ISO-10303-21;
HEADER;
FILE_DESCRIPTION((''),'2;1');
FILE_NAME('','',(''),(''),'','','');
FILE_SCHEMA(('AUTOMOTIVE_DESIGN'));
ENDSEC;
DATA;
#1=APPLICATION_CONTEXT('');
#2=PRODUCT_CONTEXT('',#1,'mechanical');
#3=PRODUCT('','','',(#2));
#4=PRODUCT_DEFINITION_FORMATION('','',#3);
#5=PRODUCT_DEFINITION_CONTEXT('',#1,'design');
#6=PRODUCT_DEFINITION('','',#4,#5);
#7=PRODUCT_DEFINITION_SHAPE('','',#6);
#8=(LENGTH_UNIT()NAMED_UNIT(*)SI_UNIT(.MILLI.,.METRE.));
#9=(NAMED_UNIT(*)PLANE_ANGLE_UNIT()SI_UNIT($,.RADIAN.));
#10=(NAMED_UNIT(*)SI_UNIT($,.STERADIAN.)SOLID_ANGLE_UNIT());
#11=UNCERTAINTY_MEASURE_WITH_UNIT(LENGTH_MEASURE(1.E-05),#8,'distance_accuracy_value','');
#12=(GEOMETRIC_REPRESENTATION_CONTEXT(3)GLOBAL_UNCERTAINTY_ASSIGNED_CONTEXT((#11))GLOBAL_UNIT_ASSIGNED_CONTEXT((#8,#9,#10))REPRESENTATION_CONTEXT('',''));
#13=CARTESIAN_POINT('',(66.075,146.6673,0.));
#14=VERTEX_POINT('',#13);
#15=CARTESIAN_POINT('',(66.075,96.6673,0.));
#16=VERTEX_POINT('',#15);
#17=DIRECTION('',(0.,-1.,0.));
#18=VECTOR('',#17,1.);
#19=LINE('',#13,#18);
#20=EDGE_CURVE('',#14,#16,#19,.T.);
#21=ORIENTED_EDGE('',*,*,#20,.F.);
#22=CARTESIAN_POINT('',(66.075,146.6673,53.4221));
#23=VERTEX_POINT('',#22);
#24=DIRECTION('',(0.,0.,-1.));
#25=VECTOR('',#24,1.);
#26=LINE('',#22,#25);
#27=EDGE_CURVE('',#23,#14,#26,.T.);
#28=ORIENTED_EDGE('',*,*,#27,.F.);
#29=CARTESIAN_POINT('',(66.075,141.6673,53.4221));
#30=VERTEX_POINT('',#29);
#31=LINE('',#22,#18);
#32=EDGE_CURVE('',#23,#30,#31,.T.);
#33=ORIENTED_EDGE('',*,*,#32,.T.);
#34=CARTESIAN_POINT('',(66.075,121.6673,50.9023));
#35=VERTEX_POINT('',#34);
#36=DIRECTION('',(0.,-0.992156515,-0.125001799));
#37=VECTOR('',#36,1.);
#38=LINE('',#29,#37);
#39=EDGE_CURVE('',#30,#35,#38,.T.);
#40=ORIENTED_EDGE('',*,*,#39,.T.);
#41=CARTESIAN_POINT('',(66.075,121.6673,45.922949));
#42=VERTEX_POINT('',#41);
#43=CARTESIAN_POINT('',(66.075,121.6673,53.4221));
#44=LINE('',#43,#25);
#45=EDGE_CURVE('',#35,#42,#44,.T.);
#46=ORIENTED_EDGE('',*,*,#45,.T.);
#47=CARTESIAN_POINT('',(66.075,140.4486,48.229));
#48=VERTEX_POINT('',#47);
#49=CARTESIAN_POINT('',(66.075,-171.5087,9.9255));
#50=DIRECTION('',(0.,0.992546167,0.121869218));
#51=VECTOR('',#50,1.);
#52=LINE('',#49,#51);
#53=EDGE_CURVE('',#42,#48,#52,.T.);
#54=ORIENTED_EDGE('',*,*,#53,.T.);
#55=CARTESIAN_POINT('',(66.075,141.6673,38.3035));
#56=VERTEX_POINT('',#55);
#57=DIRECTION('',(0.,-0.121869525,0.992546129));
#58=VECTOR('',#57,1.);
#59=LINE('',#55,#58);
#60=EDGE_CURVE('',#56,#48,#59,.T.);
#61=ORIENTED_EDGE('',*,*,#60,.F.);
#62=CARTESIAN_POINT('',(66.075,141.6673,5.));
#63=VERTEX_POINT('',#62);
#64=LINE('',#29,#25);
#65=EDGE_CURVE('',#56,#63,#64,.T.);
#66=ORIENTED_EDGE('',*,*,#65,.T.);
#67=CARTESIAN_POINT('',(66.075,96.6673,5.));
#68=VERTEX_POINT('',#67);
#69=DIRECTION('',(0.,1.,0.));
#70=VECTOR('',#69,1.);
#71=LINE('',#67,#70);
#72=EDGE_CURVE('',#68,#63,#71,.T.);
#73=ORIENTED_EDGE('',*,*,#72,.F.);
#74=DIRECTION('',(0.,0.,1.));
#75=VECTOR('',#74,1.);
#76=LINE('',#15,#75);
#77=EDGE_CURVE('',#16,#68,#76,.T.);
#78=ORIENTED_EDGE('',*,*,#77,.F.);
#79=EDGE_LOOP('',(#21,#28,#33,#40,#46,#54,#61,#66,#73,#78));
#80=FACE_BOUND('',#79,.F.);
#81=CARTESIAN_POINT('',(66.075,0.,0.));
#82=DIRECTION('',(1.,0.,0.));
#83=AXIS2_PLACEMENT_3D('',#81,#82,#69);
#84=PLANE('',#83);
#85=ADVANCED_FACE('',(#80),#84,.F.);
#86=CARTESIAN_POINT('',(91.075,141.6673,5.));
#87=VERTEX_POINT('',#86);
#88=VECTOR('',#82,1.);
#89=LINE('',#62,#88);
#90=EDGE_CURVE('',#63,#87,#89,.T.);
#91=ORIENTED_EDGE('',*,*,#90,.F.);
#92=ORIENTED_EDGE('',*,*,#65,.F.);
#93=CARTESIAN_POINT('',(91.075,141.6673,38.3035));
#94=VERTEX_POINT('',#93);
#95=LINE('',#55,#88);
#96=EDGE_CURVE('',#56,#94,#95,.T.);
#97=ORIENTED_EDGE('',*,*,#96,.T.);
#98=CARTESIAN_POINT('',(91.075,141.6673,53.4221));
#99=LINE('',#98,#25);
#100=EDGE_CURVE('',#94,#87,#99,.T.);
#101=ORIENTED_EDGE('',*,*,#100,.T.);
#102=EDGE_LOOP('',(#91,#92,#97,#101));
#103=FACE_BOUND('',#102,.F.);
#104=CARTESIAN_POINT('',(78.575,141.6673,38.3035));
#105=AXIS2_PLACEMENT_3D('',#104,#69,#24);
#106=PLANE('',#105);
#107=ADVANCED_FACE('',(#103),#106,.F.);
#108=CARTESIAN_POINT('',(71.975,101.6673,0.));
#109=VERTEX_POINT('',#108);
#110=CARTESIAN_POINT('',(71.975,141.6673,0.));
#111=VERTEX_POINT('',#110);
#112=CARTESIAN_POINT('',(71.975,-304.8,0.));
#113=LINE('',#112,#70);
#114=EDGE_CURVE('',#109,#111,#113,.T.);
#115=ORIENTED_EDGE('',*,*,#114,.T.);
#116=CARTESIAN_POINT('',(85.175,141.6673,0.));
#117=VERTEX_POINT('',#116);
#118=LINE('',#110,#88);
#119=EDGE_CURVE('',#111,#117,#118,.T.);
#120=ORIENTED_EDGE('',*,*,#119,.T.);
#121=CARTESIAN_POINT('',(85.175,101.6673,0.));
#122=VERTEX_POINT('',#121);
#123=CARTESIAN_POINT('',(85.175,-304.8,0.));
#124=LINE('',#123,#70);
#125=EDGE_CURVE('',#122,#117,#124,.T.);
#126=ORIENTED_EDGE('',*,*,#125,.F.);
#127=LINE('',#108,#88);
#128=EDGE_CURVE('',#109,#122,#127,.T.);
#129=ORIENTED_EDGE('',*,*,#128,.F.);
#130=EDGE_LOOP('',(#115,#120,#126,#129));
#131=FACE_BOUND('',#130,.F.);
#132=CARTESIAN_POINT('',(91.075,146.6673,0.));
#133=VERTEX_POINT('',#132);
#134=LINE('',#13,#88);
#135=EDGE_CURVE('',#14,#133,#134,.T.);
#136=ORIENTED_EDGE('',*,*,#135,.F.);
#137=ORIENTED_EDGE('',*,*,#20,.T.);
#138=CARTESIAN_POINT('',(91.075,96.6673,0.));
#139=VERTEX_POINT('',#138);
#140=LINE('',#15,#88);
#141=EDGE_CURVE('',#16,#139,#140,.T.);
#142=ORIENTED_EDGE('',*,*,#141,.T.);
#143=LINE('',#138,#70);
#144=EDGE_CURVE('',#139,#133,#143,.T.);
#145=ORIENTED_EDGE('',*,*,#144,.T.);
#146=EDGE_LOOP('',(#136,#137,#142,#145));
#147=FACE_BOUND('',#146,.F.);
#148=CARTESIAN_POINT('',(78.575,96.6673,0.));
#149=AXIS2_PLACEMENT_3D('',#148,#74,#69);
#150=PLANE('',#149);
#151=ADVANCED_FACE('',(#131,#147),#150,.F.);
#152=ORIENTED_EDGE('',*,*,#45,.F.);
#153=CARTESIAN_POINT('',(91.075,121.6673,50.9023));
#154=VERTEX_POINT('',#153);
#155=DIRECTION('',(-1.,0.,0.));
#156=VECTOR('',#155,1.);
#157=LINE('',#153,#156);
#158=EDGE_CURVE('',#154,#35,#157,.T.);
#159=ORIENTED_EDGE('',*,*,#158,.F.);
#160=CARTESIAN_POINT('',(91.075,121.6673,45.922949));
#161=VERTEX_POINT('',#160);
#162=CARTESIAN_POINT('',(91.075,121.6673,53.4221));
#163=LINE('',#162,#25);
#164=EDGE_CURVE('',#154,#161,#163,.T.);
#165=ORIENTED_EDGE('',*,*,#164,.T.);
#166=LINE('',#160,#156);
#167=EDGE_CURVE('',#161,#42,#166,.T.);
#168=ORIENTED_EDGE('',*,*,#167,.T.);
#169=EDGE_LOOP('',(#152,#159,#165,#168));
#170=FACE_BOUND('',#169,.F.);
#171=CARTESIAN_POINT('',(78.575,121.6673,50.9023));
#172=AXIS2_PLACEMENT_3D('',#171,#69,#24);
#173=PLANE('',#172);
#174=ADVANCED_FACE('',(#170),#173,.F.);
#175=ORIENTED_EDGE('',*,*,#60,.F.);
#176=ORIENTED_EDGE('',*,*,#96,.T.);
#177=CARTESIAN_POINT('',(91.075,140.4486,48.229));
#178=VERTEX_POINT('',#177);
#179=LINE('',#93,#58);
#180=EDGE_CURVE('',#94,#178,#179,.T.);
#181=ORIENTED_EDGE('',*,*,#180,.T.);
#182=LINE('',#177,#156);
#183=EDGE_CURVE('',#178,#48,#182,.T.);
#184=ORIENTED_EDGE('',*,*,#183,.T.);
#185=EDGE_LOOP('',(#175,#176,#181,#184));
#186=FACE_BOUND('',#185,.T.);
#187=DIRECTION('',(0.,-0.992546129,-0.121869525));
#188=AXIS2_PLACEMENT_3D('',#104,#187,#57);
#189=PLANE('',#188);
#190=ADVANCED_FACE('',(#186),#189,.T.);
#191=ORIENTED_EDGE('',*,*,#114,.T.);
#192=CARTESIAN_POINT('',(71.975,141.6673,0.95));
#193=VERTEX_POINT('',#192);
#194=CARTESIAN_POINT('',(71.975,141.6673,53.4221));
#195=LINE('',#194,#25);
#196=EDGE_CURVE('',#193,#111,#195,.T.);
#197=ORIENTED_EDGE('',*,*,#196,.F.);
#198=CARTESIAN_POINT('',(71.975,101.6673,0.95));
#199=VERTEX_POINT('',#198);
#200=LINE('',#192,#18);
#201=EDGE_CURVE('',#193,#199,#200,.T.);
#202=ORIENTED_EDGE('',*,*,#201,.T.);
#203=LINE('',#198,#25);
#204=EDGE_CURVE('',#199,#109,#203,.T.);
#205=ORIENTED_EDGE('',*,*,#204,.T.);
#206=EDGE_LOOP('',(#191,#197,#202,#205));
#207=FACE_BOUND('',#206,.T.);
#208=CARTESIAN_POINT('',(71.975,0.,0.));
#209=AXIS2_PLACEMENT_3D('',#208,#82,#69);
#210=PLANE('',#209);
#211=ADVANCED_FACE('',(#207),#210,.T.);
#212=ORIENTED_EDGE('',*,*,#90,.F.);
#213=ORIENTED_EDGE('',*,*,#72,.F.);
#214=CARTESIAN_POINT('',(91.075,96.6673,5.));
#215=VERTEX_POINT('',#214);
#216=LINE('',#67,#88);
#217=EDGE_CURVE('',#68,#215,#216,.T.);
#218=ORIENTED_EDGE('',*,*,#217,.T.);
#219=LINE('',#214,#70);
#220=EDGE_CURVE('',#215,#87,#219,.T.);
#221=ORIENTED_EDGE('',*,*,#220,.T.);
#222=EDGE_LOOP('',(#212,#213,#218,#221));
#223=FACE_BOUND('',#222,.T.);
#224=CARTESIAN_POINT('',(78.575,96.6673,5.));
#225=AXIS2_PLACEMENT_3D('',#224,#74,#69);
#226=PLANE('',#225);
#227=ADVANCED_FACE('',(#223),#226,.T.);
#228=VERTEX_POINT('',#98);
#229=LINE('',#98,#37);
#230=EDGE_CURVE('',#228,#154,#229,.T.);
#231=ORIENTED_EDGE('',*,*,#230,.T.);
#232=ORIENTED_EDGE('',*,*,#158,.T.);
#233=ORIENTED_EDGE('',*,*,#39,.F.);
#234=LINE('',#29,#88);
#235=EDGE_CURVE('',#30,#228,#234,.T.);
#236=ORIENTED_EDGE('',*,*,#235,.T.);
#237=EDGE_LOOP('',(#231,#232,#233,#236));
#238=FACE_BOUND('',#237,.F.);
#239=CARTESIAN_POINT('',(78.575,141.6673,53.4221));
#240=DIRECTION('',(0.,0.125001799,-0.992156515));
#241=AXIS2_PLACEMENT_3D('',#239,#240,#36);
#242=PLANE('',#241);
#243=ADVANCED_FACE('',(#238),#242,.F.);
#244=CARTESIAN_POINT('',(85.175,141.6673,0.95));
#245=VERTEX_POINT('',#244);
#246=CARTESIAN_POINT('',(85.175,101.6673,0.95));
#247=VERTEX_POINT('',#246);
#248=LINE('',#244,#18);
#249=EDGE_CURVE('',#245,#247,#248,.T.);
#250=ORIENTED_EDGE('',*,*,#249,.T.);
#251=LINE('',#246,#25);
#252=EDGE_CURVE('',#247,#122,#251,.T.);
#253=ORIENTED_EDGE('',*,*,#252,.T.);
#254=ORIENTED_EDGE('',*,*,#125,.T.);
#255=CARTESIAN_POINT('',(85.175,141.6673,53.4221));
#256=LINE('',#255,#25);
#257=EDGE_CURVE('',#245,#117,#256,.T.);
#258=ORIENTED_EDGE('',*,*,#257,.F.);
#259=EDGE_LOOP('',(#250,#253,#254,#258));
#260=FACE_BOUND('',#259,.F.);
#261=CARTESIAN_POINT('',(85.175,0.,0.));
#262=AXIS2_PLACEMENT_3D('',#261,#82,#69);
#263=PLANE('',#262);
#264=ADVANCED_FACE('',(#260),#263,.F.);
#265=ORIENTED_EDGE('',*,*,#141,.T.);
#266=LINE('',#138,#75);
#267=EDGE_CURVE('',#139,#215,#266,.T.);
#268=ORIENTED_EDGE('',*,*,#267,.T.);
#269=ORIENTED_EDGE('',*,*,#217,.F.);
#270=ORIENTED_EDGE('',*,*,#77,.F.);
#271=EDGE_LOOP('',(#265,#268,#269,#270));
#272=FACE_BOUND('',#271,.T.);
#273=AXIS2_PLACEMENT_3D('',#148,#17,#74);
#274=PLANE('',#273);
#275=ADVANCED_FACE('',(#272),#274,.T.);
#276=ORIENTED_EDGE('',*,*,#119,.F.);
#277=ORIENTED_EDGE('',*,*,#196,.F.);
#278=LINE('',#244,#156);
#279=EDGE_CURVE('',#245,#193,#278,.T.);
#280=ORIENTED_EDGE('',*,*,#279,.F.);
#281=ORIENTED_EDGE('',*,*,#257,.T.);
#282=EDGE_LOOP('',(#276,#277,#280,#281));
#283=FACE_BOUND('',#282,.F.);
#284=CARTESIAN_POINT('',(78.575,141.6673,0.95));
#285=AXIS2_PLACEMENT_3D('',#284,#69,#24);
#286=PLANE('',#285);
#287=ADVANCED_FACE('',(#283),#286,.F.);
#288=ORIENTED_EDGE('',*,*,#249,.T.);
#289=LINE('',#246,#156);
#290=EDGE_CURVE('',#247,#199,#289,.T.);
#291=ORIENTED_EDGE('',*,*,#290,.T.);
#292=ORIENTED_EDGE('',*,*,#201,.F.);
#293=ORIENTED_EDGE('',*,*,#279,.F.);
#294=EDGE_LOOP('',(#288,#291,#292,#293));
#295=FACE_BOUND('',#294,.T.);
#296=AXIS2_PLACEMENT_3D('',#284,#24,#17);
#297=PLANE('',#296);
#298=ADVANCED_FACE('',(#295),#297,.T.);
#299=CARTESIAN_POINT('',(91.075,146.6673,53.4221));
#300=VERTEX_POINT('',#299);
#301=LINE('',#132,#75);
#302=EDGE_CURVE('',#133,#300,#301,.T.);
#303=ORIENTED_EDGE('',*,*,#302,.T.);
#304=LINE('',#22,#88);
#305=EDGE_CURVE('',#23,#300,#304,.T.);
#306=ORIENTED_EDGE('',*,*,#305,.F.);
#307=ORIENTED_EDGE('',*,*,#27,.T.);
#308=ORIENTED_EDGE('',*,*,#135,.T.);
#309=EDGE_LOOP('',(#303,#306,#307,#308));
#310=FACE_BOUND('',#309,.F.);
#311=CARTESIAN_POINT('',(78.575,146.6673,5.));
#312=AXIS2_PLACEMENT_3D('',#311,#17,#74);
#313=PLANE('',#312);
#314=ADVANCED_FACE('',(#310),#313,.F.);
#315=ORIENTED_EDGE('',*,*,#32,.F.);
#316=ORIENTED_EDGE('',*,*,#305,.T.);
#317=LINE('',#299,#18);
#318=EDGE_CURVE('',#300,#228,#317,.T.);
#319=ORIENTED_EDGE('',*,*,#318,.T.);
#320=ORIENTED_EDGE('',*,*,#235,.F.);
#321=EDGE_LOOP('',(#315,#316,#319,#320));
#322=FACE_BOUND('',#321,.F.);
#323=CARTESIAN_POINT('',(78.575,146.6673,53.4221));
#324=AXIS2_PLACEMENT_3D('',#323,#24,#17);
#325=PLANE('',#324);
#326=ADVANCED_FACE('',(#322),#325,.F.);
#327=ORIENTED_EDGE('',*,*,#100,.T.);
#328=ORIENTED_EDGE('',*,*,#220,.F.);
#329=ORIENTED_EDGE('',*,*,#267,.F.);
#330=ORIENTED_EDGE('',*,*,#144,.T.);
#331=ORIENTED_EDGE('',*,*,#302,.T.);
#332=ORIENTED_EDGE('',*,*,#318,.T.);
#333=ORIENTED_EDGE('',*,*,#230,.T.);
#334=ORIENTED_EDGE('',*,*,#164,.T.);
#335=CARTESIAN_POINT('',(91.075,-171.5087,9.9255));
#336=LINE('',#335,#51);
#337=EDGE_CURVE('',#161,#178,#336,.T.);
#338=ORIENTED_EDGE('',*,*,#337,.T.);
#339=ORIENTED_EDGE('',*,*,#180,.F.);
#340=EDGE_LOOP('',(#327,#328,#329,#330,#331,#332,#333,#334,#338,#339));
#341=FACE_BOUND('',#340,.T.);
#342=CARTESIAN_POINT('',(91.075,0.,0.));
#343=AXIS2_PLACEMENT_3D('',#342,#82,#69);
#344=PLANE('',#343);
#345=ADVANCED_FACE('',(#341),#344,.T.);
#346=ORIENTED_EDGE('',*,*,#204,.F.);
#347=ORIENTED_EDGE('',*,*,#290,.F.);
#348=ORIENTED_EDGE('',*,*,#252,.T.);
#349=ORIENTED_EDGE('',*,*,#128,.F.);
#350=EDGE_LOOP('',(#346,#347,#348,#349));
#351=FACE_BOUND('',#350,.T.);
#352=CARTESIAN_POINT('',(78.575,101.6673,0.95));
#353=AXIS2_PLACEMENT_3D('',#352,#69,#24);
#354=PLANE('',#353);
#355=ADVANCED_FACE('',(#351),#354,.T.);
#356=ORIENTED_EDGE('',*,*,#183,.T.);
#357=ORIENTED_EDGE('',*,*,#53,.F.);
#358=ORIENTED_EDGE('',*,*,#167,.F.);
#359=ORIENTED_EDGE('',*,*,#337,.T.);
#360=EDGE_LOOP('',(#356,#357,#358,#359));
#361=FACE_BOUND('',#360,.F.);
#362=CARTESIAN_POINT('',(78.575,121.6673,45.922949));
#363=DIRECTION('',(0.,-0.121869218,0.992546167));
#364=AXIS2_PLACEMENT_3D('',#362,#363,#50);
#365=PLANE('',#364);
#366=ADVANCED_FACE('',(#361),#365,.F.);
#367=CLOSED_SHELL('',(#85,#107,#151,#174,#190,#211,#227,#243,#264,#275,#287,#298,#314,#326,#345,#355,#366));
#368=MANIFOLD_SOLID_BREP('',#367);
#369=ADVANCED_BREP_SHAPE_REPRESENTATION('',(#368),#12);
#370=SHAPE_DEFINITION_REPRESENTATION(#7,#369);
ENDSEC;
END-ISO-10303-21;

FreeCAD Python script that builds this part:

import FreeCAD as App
import Part
import Sketcher

V = App.Vector
Q = App.Units.Quantity

doc = App.newDocument("Part")
body = doc.addObject("PartDesign::Body", "Body")

# Sketch on YZ plane
sketch1 = body.newObject("Sketcher::SketchObject", "Sketch")
sketch1.AttachmentSupport = (doc.getObject("YZ_Plane"), [""])
sketch1.MapMode = "FlatFace"
sketch1.AttachmentOffset = App.Placement(V(0, 0, 78.575), App.Rotation())
sketch1.addGeometry([
    Part.LineSegment(V(140.4486, 48.229, 0), V(141.6673, 38.3035, 0)),  # 0
    Part.LineSegment(V(141.6673, 38.3035, 0), V(141.6673, 5, 0)),  # 1
    Part.LineSegment(V(141.6673, 5, 0), V(96.6673, 5, 0)),  # 2
    Part.LineSegment(V(96.6673, 5, 0), V(96.6673, 0, 0)),  # 3
    Part.LineSegment(V(96.6673, 0, 0), V(146.6673, 0, 0)),  # 4
    Part.LineSegment(V(146.6673, 0, 0), V(146.6673, 53.4221, 0)),  # 5
    Part.LineSegment(V(146.6673, 53.4221, 0), V(141.6673, 53.4221, 0)),  # 6
    Part.LineSegment(V(141.6673, 53.4221, 0), V(121.6673, 50.9023, 0)),  # 7
    Part.LineSegment(V(121.6673, 50.9023, 0), V(121.6673, 45.922949, 0)),  # 8
    Part.LineSegment(V(121.6673, 45.922949, 0), V(140.4486, 48.229, 0)),  # 9
], False)
sketch1.addConstraint([
    Sketcher.Constraint("Coincident", 0, 2, 1, 1),
    Sketcher.Constraint("Coincident", 1, 2, 2, 1),
    Sketcher.Constraint("Coincident", 2, 2, 3, 1),
    Sketcher.Constraint("Coincident", 3, 2, 4, 1),
    Sketcher.Constraint("Coincident", 4, 2, 5, 1),
    Sketcher.Constraint("Coincident", 5, 2, 6, 1),
    Sketcher.Constraint("Coincident", 6, 2, 7, 1),
    Sketcher.Constraint("Coincident", 7, 2, 8, 1),
    Sketcher.Constraint("Coincident", 8, 2, 9, 1),
    Sketcher.Constraint("Coincident", 9, 2, 0, 1),
    Sketcher.Constraint("Vertical", 1),
    Sketcher.Constraint("Horizontal", 2),
    Sketcher.Constraint("Vertical", 3),
    Sketcher.Constraint("Horizontal", 4),
    Sketcher.Constraint("Vertical", 5),
    Sketcher.Constraint("Horizontal", 6),
    Sketcher.Constraint("Vertical", 8),
    Sketcher.Constraint("PointOnObject", 3, 2, -1),
    Sketcher.Constraint("Perpendicular", 0, 9),
    Sketcher.Constraint("Vertical", 1, 2, 6, 2),
    Sketcher.Constraint("Equal", 6, 3),
    Sketcher.Constraint("DistanceX", 4, 1, 4, 2, Q("50 mm")),
    Sketcher.Constraint("DistanceX", 6, 2, 6, 1, Q("5 mm")),
    Sketcher.Constraint("DistanceX", 7, 2, 6, 2, Q("20 mm")),
    Sketcher.Constraint("Angle", 0, Q("-83 deg")),
    Sketcher.Constraint("Distance", 0, Q("10 mm")),
    Sketcher.Constraint("Angle", 7, Q("-172.8191 deg")),
    Sketcher.Constraint("DistanceY", 5, 1, 5, 2, Q("53.422 mm")),
    Sketcher.Constraint("DistanceY", 1, 2, 1, 1, Q("33.3035 mm")),
    Sketcher.Constraint("DistanceX", -1, 1, 0, 2, Q("141.6673 mm")),
])
pad1 = body.newObject("PartDesign::Pad", "Pad")
pad1.Profile = sketch1
pad1.Length = 25
pad1.Midplane = True

# Sketch on YZ plane
sketch2 = body.newObject("Sketcher::SketchObject", "Sketch001")
sketch2.AttachmentSupport = (doc.getObject("YZ_Plane"), [""])
sketch2.MapMode = "FlatFace"
sketch2.AttachmentOffset = App.Placement(V(0, 0, 78.575), App.Rotation())
sketch2.addGeometry([
    Part.LineSegment(V(101.6673, 0.95, 0), V(101.6673, 0, 0)),
    Part.LineSegment(V(101.6673, 0, 0), V(141.6673, 0, 0)),
    Part.LineSegment(V(141.6673, 0, 0), V(141.6673, 0.95, 0)),
    Part.LineSegment(V(141.6673, 0.95, 0), V(101.6673, 0.95, 0)),
], False)
sketch2.addConstraint([
    Sketcher.Constraint("Coincident", 0, 2, 1, 1),
    Sketcher.Constraint("Coincident", 1, 2, 2, 1),
    Sketcher.Constraint("Coincident", 2, 2, 3, 1),
    Sketcher.Constraint("Coincident", 3, 2, 0, 1),
    Sketcher.Constraint("Vertical", 0),
    Sketcher.Constraint("Horizontal", 1),
    Sketcher.Constraint("Vertical", 2),
    Sketcher.Constraint("Horizontal", 3),
    Sketcher.Constraint("PointOnObject", 0, 2, -1),
    Sketcher.Constraint("DistanceX", 1, 1, 1, 2, Q("40 mm")),
    Sketcher.Constraint("DistanceY", 0, 2, 0, 1, Q("0.95 mm")),
    Sketcher.Constraint("DistanceX", -1, 1, 0, 2, Q("101.6673 mm")),
])
pocket1 = body.newObject("PartDesign::Pocket", "Pocket")
pocket1.Profile = sketch2
pocket1.Length = 13.2
pocket1.Midplane = True

doc.recompute()
